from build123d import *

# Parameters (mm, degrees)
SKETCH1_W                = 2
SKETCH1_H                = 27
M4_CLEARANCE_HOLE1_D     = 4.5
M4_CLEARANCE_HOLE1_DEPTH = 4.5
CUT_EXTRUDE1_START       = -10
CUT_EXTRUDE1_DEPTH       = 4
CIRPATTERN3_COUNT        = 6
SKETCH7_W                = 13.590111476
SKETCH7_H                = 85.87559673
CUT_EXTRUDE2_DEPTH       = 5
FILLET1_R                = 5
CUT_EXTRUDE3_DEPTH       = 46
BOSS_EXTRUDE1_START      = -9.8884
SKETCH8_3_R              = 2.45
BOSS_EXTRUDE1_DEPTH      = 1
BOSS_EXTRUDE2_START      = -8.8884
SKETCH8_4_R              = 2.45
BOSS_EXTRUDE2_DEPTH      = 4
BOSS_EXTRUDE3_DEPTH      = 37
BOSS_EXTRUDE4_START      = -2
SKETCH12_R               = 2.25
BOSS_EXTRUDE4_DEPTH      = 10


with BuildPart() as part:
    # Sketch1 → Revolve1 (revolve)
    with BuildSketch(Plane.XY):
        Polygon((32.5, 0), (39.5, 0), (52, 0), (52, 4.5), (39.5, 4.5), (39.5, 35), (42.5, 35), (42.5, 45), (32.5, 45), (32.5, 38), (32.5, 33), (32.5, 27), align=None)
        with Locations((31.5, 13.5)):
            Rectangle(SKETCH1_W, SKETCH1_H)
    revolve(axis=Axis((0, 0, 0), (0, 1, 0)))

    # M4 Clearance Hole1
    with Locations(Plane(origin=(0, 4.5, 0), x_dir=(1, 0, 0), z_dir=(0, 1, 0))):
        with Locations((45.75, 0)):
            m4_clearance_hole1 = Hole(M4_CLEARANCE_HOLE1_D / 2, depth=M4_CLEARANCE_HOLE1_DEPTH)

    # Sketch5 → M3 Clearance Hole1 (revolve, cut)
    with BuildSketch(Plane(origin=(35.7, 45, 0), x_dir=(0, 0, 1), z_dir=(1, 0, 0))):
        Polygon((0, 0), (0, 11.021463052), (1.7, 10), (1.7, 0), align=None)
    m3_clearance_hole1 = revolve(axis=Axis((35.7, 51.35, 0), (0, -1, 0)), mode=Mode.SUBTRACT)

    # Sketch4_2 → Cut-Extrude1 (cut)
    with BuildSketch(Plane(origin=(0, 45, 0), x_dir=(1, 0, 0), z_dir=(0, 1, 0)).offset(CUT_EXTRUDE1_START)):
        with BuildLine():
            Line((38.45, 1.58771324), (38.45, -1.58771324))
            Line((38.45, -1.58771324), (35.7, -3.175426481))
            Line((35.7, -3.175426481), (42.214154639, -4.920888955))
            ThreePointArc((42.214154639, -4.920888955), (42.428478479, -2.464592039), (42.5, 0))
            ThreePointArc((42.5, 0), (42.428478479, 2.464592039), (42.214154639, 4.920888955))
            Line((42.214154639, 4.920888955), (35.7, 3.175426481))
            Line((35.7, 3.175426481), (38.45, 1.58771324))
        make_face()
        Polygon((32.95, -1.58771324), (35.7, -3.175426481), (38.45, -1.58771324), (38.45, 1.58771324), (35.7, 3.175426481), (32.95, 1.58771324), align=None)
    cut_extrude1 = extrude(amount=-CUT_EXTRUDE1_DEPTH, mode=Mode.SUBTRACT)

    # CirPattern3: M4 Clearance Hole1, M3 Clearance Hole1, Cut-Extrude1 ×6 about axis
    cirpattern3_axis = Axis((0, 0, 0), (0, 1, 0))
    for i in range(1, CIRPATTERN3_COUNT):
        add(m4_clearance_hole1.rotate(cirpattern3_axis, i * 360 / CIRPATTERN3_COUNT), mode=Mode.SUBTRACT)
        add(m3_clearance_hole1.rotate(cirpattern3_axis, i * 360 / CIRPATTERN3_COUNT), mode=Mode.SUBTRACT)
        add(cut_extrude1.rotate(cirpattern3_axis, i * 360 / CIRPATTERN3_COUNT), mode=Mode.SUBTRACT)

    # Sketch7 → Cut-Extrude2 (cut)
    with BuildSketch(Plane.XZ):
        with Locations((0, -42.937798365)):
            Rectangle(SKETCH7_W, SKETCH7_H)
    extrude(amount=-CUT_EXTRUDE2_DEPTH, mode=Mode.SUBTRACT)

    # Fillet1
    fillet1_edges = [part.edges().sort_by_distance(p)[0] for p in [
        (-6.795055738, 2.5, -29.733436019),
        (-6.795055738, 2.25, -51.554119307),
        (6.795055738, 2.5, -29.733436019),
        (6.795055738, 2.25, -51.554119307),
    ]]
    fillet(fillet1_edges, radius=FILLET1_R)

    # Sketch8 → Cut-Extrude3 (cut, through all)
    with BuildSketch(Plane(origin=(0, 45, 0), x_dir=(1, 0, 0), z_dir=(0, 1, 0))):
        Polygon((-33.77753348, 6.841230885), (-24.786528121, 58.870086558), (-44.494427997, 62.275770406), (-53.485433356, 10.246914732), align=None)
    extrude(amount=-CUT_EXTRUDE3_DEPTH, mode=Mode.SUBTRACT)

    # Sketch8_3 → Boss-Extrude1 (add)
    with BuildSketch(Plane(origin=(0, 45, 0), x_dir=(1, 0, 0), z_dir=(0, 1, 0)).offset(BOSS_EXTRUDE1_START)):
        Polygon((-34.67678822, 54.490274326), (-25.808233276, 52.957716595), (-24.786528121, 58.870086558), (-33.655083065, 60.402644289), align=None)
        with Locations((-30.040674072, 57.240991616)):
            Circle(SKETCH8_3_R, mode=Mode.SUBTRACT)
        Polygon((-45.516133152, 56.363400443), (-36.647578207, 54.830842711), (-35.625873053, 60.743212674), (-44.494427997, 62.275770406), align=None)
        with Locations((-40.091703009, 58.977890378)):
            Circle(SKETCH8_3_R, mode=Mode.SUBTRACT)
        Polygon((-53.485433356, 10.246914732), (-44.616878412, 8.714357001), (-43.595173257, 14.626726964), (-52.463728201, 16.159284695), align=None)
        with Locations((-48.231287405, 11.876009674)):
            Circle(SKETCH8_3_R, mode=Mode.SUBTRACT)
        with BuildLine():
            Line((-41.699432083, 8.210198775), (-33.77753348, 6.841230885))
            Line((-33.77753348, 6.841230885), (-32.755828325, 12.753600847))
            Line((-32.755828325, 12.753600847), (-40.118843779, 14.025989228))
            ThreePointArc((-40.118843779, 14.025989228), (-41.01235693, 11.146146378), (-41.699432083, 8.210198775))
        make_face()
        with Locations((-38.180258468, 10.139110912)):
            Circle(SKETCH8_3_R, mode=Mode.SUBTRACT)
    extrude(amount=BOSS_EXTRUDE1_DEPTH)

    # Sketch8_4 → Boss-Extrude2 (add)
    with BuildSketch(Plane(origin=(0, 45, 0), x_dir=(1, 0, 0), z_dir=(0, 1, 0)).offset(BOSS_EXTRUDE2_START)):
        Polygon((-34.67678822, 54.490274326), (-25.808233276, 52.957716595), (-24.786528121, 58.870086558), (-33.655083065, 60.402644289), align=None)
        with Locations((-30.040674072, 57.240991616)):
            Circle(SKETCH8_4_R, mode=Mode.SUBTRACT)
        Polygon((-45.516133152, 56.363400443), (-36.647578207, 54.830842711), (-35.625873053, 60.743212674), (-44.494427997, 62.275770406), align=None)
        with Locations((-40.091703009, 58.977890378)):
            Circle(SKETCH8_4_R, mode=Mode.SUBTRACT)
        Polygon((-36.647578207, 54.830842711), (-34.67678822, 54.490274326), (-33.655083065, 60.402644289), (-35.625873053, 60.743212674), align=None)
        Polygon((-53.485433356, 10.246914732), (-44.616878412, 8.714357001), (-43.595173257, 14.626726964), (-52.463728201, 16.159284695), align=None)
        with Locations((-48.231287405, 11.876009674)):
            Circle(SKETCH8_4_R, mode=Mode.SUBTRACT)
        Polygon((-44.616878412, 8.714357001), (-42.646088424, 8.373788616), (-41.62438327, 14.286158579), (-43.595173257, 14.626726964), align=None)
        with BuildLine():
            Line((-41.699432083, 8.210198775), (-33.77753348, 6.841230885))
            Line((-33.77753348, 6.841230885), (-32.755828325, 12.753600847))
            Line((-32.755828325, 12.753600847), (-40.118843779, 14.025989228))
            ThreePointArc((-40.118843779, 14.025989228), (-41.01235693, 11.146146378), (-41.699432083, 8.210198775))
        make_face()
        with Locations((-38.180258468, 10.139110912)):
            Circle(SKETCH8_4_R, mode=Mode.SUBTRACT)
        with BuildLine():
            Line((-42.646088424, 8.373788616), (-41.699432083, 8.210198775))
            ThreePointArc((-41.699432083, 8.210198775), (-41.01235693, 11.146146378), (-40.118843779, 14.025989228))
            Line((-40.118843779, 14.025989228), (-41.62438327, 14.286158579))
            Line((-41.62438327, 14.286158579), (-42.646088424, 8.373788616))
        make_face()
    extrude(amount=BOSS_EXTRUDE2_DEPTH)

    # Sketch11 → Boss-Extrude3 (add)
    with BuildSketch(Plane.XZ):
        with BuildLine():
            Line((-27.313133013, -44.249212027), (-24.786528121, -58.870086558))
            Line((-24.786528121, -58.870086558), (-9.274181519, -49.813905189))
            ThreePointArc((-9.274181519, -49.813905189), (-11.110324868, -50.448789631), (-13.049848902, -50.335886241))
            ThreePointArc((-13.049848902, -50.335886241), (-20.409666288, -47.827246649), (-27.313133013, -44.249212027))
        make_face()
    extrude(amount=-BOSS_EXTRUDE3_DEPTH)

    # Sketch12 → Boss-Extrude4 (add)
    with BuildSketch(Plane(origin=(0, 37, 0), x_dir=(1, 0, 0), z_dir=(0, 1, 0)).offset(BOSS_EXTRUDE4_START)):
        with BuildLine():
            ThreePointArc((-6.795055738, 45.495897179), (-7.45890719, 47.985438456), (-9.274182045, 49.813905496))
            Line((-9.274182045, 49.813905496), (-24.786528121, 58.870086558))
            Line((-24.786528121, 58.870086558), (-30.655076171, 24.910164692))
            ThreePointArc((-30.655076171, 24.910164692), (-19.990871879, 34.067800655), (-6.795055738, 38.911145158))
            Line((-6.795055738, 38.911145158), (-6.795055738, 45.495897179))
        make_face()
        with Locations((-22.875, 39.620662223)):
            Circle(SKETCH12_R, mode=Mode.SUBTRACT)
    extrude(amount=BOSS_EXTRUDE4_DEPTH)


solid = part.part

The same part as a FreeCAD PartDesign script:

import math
import FreeCAD as App
import Part
import Sketcher
Q = App.Units.Quantity


def edges_at(feature, points):
    """Names of the edges that pass closest to the given points."""
    edges = feature.Shape.Edges
    near = lambda p: min(range(len(edges)), key=lambda i: edges[i].distToShape(Part.Vertex(*p))[0])
    return sorted({f"Edge{near(p) + 1}" for p in points})


def add_polygon(sketch, points):
    """Adds a closed chain of lines whose ends are joined by coincident constraints."""
    first, n = sketch.GeometryCount, len(points)
    for a, b in zip(points, points[1:] + points[:1]):
        sketch.addGeometry(Part.LineSegment(App.Vector(*a, 0), App.Vector(*b, 0)), False)
    for i in range(n):
        sketch.addConstraint(Sketcher.Constraint("Coincident", first + i, 2, first + (i + 1) % n, 1))

doc = App.newDocument("Part")
body = doc.addObject("PartDesign::Body", "Body")
body.AllowCompound = True

sketch1 = body.newObject("Sketcher::SketchObject", "Sketch")
sketch1.AttachmentSupport = (doc.getObject("XY_Plane"), [""])
sketch1.MapMode = "FlatFace"
add_polygon(sketch1, [(52, 0), (52, 4.5), (39.5, 4.5), (39.5, 35), (42.5, 35), (42.5, 45), (32.5, 45), (32.5, 27), (30.5, 27), (30.5, 0)])
sketch1.addConstraint([
    Sketcher.Constraint("Vertical", 0),
    Sketcher.Constraint("Horizontal", 1),
    Sketcher.Constraint("Vertical", 2),
    Sketcher.Constraint("Horizontal", 3),
    Sketcher.Constraint("Vertical", 4),
    Sketcher.Constraint("Horizontal", 5),
    Sketcher.Constraint("Vertical", 6),
    Sketcher.Constraint("Horizontal", 7),
    Sketcher.Constraint("Vertical", 8),
    Sketcher.Constraint("Horizontal", 9),
    Sketcher.Constraint("PointOnObject", 8, 2, -1),
    Sketcher.Constraint("Equal", 5, 4),
    Sketcher.Constraint("DistanceX", 3, 1, 3, 2, 3.0),
    Sketcher.Constraint("DistanceX", 5, 2, 5, 1, 10.0),
    Sketcher.Constraint("DistanceX", 7, 2, 7, 1, 2.0),
    Sketcher.Constraint("DistanceY", 6, 2, 6, 1, 18.0),
    Sketcher.Constraint("DistanceY", 8, 2, 8, 1, 27.0),
    Sketcher.Constraint("DistanceX", 1, 2, 1, 1, 12.5),
    Sketcher.Constraint("DistanceY", 0, 1, 0, 2, 4.5),
    Sketcher.Constraint("DistanceX", -1, 1, 0, 2, 52.0),
])
revolution = body.newObject("PartDesign::Revolution", "Revolution")
revolution.Profile = sketch1
revolution.ReferenceAxis = (sketch1, ["V_Axis"])
revolution.Angle = 360

sketch2 = body.newObject("Sketcher::SketchObject", "Sketch001")
sketch2.AttachmentSupport = (doc.getObject("XZ_Plane"), [""])
sketch2.MapMode = "FlatFace"
sketch2.AttachmentOffset = App.Placement(App.Vector(0, 0, -4.5), App.Rotation())
sketch2.addGeometry(Part.Circle(App.Vector(45.8, 0, 0), App.Vector(0, 0, 1), 2.2), False)
sketch2.addConstraint([
    Sketcher.Constraint("PointOnObject", 0, 3, -1),
    Sketcher.Constraint("Diameter", 0, 4.5),
    Sketcher.Constraint("DistanceX", -1, 1, 0, 3, 45.75),
])
doc.recompute()
hole = body.newObject("PartDesign::Hole", "Hole")
hole.Profile = sketch2
hole.ThreadType = "None"
hole.Diameter = 4.5
hole.DepthType = "Dimension"
hole.Depth = 4.5
hole.DrillPoint = "Flat"
hole.Reversed = True

sketch3 = body.newObject("Sketcher::SketchObject", "Sketch002")
sketch3.AttachmentSupport = (doc.getObject("YZ_Plane"), [""])
sketch3.MapMode = "FlatFace"
sketch3.AttachmentOffset = App.Placement(App.Vector(0, 0, 35.7), App.Rotation())
add_polygon(sketch3, [(34, 0), (45, 0), (45, 1.7), (35, 1.7)])
sketch3.addConstraint([
    Sketcher.Constraint("Horizontal", 0),
    Sketcher.Constraint("Vertical", 1),
    Sketcher.Constraint("Horizontal", 2),
    Sketcher.Constraint("PointOnObject", 0, 2, -1),
    Sketcher.Constraint("DistanceX", 2, 2, 2, 1, 10.0),
    Sketcher.Constraint("Angle", 3, Q("-121 deg")),
    Sketcher.Constraint("DistanceY", 1, 1, 1, 2, 1.7),
    Sketcher.Constraint("DistanceX", -1, 1, 0, 2, 45.0),
])
groove = body.newObject("PartDesign::Groove", "Groove")
groove.Profile = sketch3
groove.ReferenceAxis = (sketch3, ["H_Axis"])
groove.Angle = 360

sketch4 = body.newObject("Sketcher::SketchObject", "Sketch003")
sketch4.AttachmentSupport = (doc.getObject("XZ_Plane"), [""])
sketch4.MapMode = "FlatFace"
sketch4.AttachmentOffset = App.Placement(App.Vector(0, 0, -35), App.Rotation())
sketch4.addGeometry([
    Part.LineSegment(App.Vector(35.7, 3.2, 0), App.Vector(42.2, 4.9, 0)),
    Part.ArcOfCircle(Part.Circle(App.Vector(0, 0, 0), App.Vector(0, 0, 1), 42.5), math.radians(0), math.radians(6.65)),
    Part.ArcOfCircle(Part.Circle(App.Vector(0, 0, 0), App.Vector(0, 0, 1), 42.5), math.radians(-6.65), math.radians(0)),
    Part.LineSegment(App.Vector(42.2, -4.9, 0), App.Vector(35.7, -3.2, 0)),
    Part.LineSegment(App.Vector(35.7, -3.2, 0), App.Vector(33, -1.6, 0)),
    Part.LineSegment(App.Vector(33, -1.6, 0), App.Vector(33, 1.6, 0)),
    Part.LineSegment(App.Vector(33, 1.6, 0), App.Vector(35.7, 3.2, 0)),
], False)
sketch4.addConstraint([
    Sketcher.Constraint("Coincident", 0, 2, 1, 2),
    Sketcher.Constraint("Tangent", 1, 1, 2, 2),
    Sketcher.Constraint("Coincident", 2, 1, 3, 1),
    Sketcher.Constraint("Coincident", 3, 2, 4, 1),
    Sketcher.Constraint("Coincident", 4, 2, 5, 1),
    Sketcher.Constraint("Coincident", 5, 2, 6, 1),
    Sketcher.Constraint("Coincident", 6, 2, 0, 1),
    Sketcher.Constraint("Vertical", 5),
    Sketcher.Constraint("Coincident", 1, 3, -1, 1),
    Sketcher.Constraint("Equal", 1, 2),
    Sketcher.Constraint("Symmetric", 3, 2, 6, 2, -1),
    Sketcher.Constraint("PointOnObject", 1, 1, -1),
    Sketcher.Constraint("Vertical", 0, 2, 2, 1),
    Sketcher.Constraint("Equal", 4, 6),
    Sketcher.Constraint("Radius", 1, 42.5),
    Sketcher.Constraint("Angle", 0, Q("15 deg")),
    Sketcher.Constraint("Angle", 4, Q("150 deg")),
    Sketcher.Constraint("DistanceX", -1, 1, 3, 2, 35.7),
    Sketcher.Constraint("DistanceX", -1, 1, 4, 2, 32.95),
    Sketcher.Constraint("Distance", 0, 6.743949),
])
pocket1 = body.newObject("PartDesign::Pocket", "Pocket")
pocket1.Profile = sketch4
pocket1.Length = 4
pocket1.Reversed = True
doc.recompute()

polarpattern = body.newObject("PartDesign::PolarPattern", "PolarPattern")
polarpattern.Originals = [hole, groove, pocket1]
polarpattern.Axis = (doc.getObject("Y_Axis"), [""])
polarpattern.Angle = 360
polarpattern.Occurrences = 6
body.Tip = polarpattern

sketch5 = body.newObject("Sketcher::SketchObject", "Sketch004")
sketch5.AttachmentSupport = (doc.getObject("XZ_Plane"), [""])
sketch5.MapMode = "FlatFace"
add_polygon(sketch5, [(-7, 0), (-7, -86), (7, -86), (7, 0)])
sketch5.addConstraint([
    Sketcher.Constraint("Vertical", 0),
    Sketcher.Constraint("Horizontal", 1),
    Sketcher.Constraint("Vertical", 2),
    Sketcher.Constraint("Horizontal", 3),
    Sketcher.Constraint("Symmetric", 2, 2, 3, 2, -1, 1),
    Sketcher.Constraint("DistanceX", 1, 1, 1, 2, 13.590111),
    Sketcher.Constraint("DistanceY", 0, 2, 0, 1, 85.875597),
])
pocket2 = body.newObject("PartDesign::Pocket", "Pocket001")
pocket2.Profile = sketch5
pocket2.Length = 5
doc.recompute()

fillet = body.newObject("PartDesign::Fillet", "Fillet")
fillet.Base = (pocket2, edges_at(pocket2, [
    (-6.795, 2.5, -29.733),
    (-6.795, 2.25, -51.554),
    (6.795, 2.5, -29.733),
    (6.795, 2.25, -51.554),
]))
fillet.Radius = 5

sketch6 = body.newObject("Sketcher::SketchObject", "Sketch005")
sketch6.AttachmentSupport = (doc.getObject("XZ_Plane"), [""])
sketch6.MapMode = "FlatFace"
sketch6.AttachmentOffset = App.Placement(App.Vector(0, 0, -45), App.Rotation())
add_polygon(sketch6, [(-34, -7), (-25, -59), (-44, -62), (-53, -10)])
sketch6.addConstraint([
    Sketcher.Constraint("Perpendicular", 0, 1),
    Sketcher.Constraint("Perpendicular", 1, 2),
    Sketcher.Constraint("Perpendicular", 2, 3),
    Sketcher.Constraint("Distance", 1, 20.0),
    Sketcher.Constraint("Distance", 0, 52.8),
    Sketcher.Constraint("DistanceX", 1, 2, 0, 2, 19.7079),
    Sketcher.Constraint("DistanceX", 0, 2, -1, 1, 24.786528),
    Sketcher.Constraint("DistanceY", 1, 2, -1, 1, 62.27577),
])
pocket3 = body.newObject("PartDesign::Pocket", "Pocket002")
pocket3.Profile = sketch6
pocket3.Type = "ThroughAll"
pocket3.Reversed = True

sketch7 = body.newObject("Sketcher::SketchObject", "Sketch006")
sketch7.AttachmentSupport = (doc.getObject("XZ_Plane"), [""])
sketch7.MapMode = "FlatFace"
sketch7.AttachmentOffset = App.Placement(App.Vector(0, 0, -35.1116), App.Rotation())
add_polygon(sketch7, [(-34.7, -54.5), (-25.8, -53), (-24.8, -58.9), (-33.7, -60.4)])
sketch7.addGeometry(Part.Circle(App.Vector(-30, -57.2, 0), App.Vector(0, 0, 1), 2.5), False)
add_polygon(sketch7, [(-45.5, -56.4), (-36.6, -54.8), (-35.6, -60.7), (-44.5, -62.3)])
sketch7.addGeometry(Part.Circle(App.Vector(-40.1, -59, 0), App.Vector(0, 0, 1), 2.5), False)
add_polygon(sketch7, [(-53.5, -10.2), (-44.6, -8.7), (-43.6, -14.6), (-52.5, -16.2)])
sketch7.addGeometry(Part.Circle(App.Vector(-48.2, -11.9, 0), App.Vector(0, 0, 1), 2.5), False)
sketch7.addGeometry(Part.LineSegment(App.Vector(-41.7, -8.2, 0), App.Vector(-33.8, -6.8, 0)), False)
sketch7.addGeometry(Part.LineSegment(App.Vector(-33.8, -6.8, 0), App.Vector(-32.8, -12.8, 0)), False)
sketch7.addGeometry(Part.LineSegment(App.Vector(-32.8, -12.8, 0), App.Vector(-40.1, -14, 0)), False)
sketch7.addGeometry(Part.ArcOfCircle(Part.Circle(App.Vector(0, 0, 0), App.Vector(0, 0, 1), 42.5), math.radians(-168.86), math.radians(-160.73)), False)
sketch7.addGeometry(Part.Circle(App.Vector(-38.2, -10.1, 0), App.Vector(0, 0, 1), 2.5), False)
sketch7.addConstraint([
    Sketcher.Constraint("Coincident", 15, 2, 16, 1),
    Sketcher.Constraint("Coincident", 16, 2, 17, 1),
    Sketcher.Constraint("Coincident", 17, 2, 18, 2),
    Sketcher.Constraint("Coincident", 18, 1, 15, 1),
    Sketcher.Constraint("Coincident", 18, 3, -1, 1),
    Sketcher.Constraint("Equal", 4, 9),
    Sketcher.Constraint("Equal", 9, 14),
    Sketcher.Constraint("Equal", 14, 19),
    Sketcher.Constraint("Perpendicular", 0, 1),
    Sketcher.Constraint("Perpendicular", 1, 2),
    Sketcher.Constraint("Perpendicular", 2, 3),
    Sketcher.Constraint("Perpendicular", 3, 5),
    Sketcher.Constraint("Perpendicular", 5, 6),
    Sketcher.Constraint("Perpendicular", 6, 7),
    Sketcher.Constraint("Perpendicular", 7, 8),
    Sketcher.Constraint("Perpendicular", 8, 10),
    Sketcher.Constraint("Perpendicular", 10, 11),
    Sketcher.Constraint("Perpendicular", 11, 12),
    Sketcher.Constraint("Perpendicular", 12, 13),
    Sketcher.Constraint("Perpendicular", 13, 15),
    Sketcher.Constraint("Perpendicular", 15, 16),
    Sketcher.Constraint("Perpendicular", 16, 17),
    Sketcher.Constraint("Equal", 2, 5),
    Sketcher.Constraint("Equal", 3, 6),
    Sketcher.Constraint("Equal", 7, 10),
    Sketcher.Constraint("Equal", 8, 11),
    Sketcher.Constraint("Equal", 13, 16),
    Sketcher.Constraint("Diameter", 4, 4.9),
    Sketcher.Constraint("Radius", 18, 42.5),
    Sketcher.Constraint("Distance", 0, 9.0),
    Sketcher.Constraint("Distance", 1, 6.0),
    Sketcher.Constraint("DistanceY", 8, 2, -1, 1, 56.3634),
    Sketcher.Constraint("DistanceY", 16, 2, -1, 1, 12.753601),
    Sketcher.Constraint("DistanceY", 18, 1, -1, 1, 8.210199),
    Sketcher.Constraint("DistanceY", 9, 3, 4, 3, 1.736899),
    Sketcher.Constraint("DistanceY", 14, 3, 19, 3, 1.736899),
    Sketcher.Constraint("DistanceY", 2, 2, 5, 2, 5.571802),
    Sketcher.Constraint("DistanceX", 6, 2, 4, 3, 5.585199),
    Sketcher.Constraint("DistanceX", 10, 2, 5, 2, 7.9693),
    Sketcher.Constraint("DistanceX", 13, 2, 15, 2, 19.7079),
    Sketcher.Constraint("DistanceY", 4, 3, -1, 1, 57.240992),
    Sketcher.Constraint("DistanceY", 14, 3, -1, 1, 11.87601),
    Sketcher.Constraint("DistanceX", 19, 3, -1, 1, 38.180258),
    Sketcher.Constraint("DistanceX", 1, 2, -1, 1, 24.786528),
    Sketcher.Constraint("DistanceX", 3, 2, -1, 1, 34.676788),
    Sketcher.Constraint("DistanceX", 9, 3, 4, 3, 10.051029),
    Sketcher.Constraint("DistanceX", 14, 3, 19, 3, 10.051029),
    Sketcher.Constraint("DistanceY", 10, 2, 18, 1, 0.504158),
])
pad1 = body.newObject("PartDesign::Pad", "Pad")
pad1.Profile = sketch7
pad1.Length = 1
pad1.Reversed = True

sketch8 = body.newObject("Sketcher::SketchObject", "Sketch007")
sketch8.AttachmentSupport = (doc.getObject("XZ_Plane"), [""])
sketch8.MapMode = "FlatFace"
sketch8.AttachmentOffset = App.Placement(App.Vector(0, 0, -36.1116), App.Rotation())
add_polygon(sketch8, [(-34.7, -54.5), (-25.8, -53), (-24.8, -58.9), (-33.7, -60.4), (-35.6, -60.7), (-44.5, -62.3), (-45.5, -56.4), (-36.6, -54.8)])
sketch8.addGeometry(Part.Circle(App.Vector(-30, -57.2, 0), App.Vector(0, 0, 1), 2.5), False)
sketch8.addGeometry(Part.Circle(App.Vector(-40.1, -59, 0), App.Vector(0, 0, 1), 2.5), False)
add_polygon(sketch8, [(-53.5, -10.2), (-44.6, -8.7), (-42.6, -8.4), (-41.7, -8.2), (-33.8, -6.8), (-32.8, -12.8), (-40.1, -14), (-41.6, -14.3), (-43.6, -14.6), (-52.5, -16.2)])
sketch8.addGeometry(Part.Circle(App.Vector(-48.2, -11.9, 0), App.Vector(0, 0, 1), 2.5), False)
sketch8.addGeometry(Part.Circle(App.Vector(-38.2, -10.1, 0), App.Vector(0, 0, 1), 2.5), False)
sketch8.addConstraint([
    Sketcher.Constraint("Equal", 8, 9),
    Sketcher.Constraint("Equal", 9, 20),
    Sketcher.Constraint("Equal", 20, 21),
    Sketcher.Constraint("Perpendicular", 0, 1),
    Sketcher.Constraint("Perpendicular", 1, 2),
    Sketcher.Constraint("Parallel", 2, 3),
    Sketcher.Constraint("Parallel", 3, 4),
    Sketcher.Constraint("Perpendicular", 4, 5),
    Sketcher.Constraint("Perpendicular", 5, 6),
    Sketcher.Constraint("Parallel", 6, 7),
    Sketcher.Constraint("Parallel", 7, 10),
    Sketcher.Constraint("Parallel", 10, 11),
    Sketcher.Constraint("Parallel", 11, 12),
    Sketcher.Constraint("Parallel", 12, 13),
    Sketcher.Constraint("Perpendicular", 13, 14),
    Sketcher.Constraint("Perpendicular", 14, 15),
    Sketcher.Constraint("Parallel", 15, 16),
    Sketcher.Constraint("Parallel", 16, 17),
    Sketcher.Constraint("Parallel", 17, 18),
    Sketcher.Constraint("Perpendicular", 18, 19),
    Sketcher.Constraint("Equal", 0, 2),
    Sketcher.Constraint("Equal", 2, 4),
    Sketcher.Constraint("Equal", 4, 6),
    Sketcher.Constraint("Equal", 6, 10),
    Sketcher.Constraint("Equal", 7, 11),
    Sketcher.Constraint("Equal", 5, 14),
    Sketcher.Constraint("Equal", 11, 17),
    Sketcher.Constraint("Equal", 10, 18),
    Sketcher.Constraint("Diameter", 8, 4.9),
    Sketcher.Constraint("Distance", 0, 9.0),
    Sketcher.Constraint("Distance", 1, 6.0),
    Sketcher.Constraint("Distance", 3, 2.0),
    Sketcher.Constraint("DistanceY", 5, 2, -1, 1, 56.3634),
    Sketcher.Constraint("DistanceY", 12, 2, -1, 1, 8.210199),
    Sketcher.Constraint("DistanceY", 14, 2, -1, 1, 12.753601),
    Sketcher.Constraint("DistanceY", 9, 3, 8, 3, 1.736899),
    Sketcher.Constraint("DistanceY", 20, 3, 21, 3, 1.736899),
    Sketcher.Constraint("DistanceX", 3, 2, 8, 3, 5.585199),
    Sketcher.Constraint("DistanceX", 4, 2, 1, 2, 19.7079),
    Sketcher.Constraint("DistanceX", 10, 2, 6, 2, 7.9693),
    Sketcher.Constraint("DistanceX", 20, 3, 11, 2, 5.585199),
    Sketcher.Constraint("DistanceY", 15, 2, 11, 2, 5.652201),
    Sketcher.Constraint("DistanceY", 8, 3, -1, 1, 57.240992),
    Sketcher.Constraint("DistanceY", 20, 3, -1, 1, 11.87601),
    Sketcher.Constraint("DistanceX", 21, 3, -1, 1, 38.180258),
    Sketcher.Constraint("DistanceX", 1, 2, -1, 1, 24.786528),
    Sketcher.Constraint("DistanceY", 11, 2, -1, 1, 8.373789),
    Sketcher.Constraint("DistanceX", 9, 3, 8, 3, 10.051029),
])
pad2 = body.newObject("PartDesign::Pad", "Pad001")
pad2.Profile = sketch8
pad2.Length = 4
pad2.Reversed = True

sketch9 = body.newObject("Sketcher::SketchObject", "Sketch008")
sketch9.AttachmentSupport = (doc.getObject("XZ_Plane"), [""])
sketch9.MapMode = "FlatFace"
sketch9.addGeometry([
    Part.LineSegment(App.Vector(-27.3, -44.2, 0), App.Vector(-24.8, -58.9, 0)),
    Part.LineSegment(App.Vector(-24.8, -58.9, 0), App.Vector(-9.3, -49.8, 0)),
    Part.ArcOfCircle(Part.Circle(App.Vector(-11.8, -45.5, 0), App.Vector(0, 0, 1), 5), math.radians(-105), math.radians(-60)),
    Part.ArcOfCircle(Part.Circle(App.Vector(0, 0, 0), App.Vector(0, 0, 1), 52), math.radians(-121.69), math.radians(-104.53)),
], False)
sketch9.addConstraint([
    Sketcher.Constraint("Coincident", 0, 2, 1, 1),
    Sketcher.Constraint("Tangent", 1, 2, 2, 2),
    Sketcher.Constraint("Tangent", 2, 1, 3, 2),
    Sketcher.Constraint("Coincident", 3, 1, 0, 1),
    Sketcher.Constraint("Coincident", 3, 3, -1, 1),
    Sketcher.Constraint("Radius", 2, 5.0),
    Sketcher.Constraint("Radius", 3, 52.0),
    Sketcher.Constraint("DistanceY", 0, 2, 2, 1, 8.5342),
    Sketcher.Constraint("DistanceX", 0, 2, -1, 1, 24.786528),
    Sketcher.Constraint("DistanceX", 1, 2, -1, 1, 9.274182),
    Sketcher.Constraint("DistanceX", 3, 1, 1, 2, 18.038951),
])
pad3 = body.newObject("PartDesign::Pad", "Pad002")
pad3.Profile = sketch9
pad3.Length = 37
pad3.Reversed = True

sketch10 = body.newObject("Sketcher::SketchObject", "Sketch009")
sketch10.AttachmentSupport = (doc.getObject("XZ_Plane"), [""])
sketch10.MapMode = "FlatFace"
sketch10.AttachmentOffset = App.Placement(App.Vector(0, 0, -35), App.Rotation())
sketch10.addGeometry([
    Part.ArcOfCircle(Part.Circle(App.Vector(-11.8, -45.5, 0), App.Vector(0, 0, 1), 5), math.radians(-60), math.radians(0)),
    Part.LineSegment(App.Vector(-9.3, -49.8, 0), App.Vector(-24.8, -58.9, 0)),
    Part.LineSegment(App.Vector(-24.8, -58.9, 0), App.Vector(-30.7, -24.9, 0)),
    Part.ArcOfCircle(Part.Circle(App.Vector(0, 0, 0), App.Vector(0, 0, 1), 39.5), math.radians(-141), math.radians(-100)),
    Part.LineSegment(App.Vector(-6.8, -38.9, 0), App.Vector(-6.8, -45.5, 0)),
    Part.Circle(App.Vector(-22.9, -39.6, 0), App.Vector(0, 0, 1), 2.2),
], False)
sketch10.addConstraint([
    Sketcher.Constraint("Tangent", 0, 1, 1, 1),
    Sketcher.Constraint("Coincident", 1, 2, 2, 1),
    Sketcher.Constraint("Coincident", 2, 2, 3, 1),
    Sketcher.Constraint("Coincident", 3, 2, 4, 1),
    Sketcher.Constraint("Tangent", 4, 2, 0, 2),
    Sketcher.Constraint("Vertical", 4),
    Sketcher.Constraint("Coincident", 3, 3, -1, 1),
    Sketcher.Constraint("Radius", 0, 5.0),
    Sketcher.Constraint("Diameter", 5, 4.5),
    Sketcher.Constraint("Radius", 3, 39.5),
    Sketcher.Constraint("DistanceX", 5, 3, -1, 1, 22.875),
    Sketcher.Constraint("DistanceY", 4, 2, 4, 1, 6.584752),
    Sketcher.Constraint("DistanceX", 1, 2, -1, 1, 24.786528),
    Sketcher.Constraint("DistanceY", 0, 1, 0, 3, 4.318008),
    Sketcher.Constraint("DistanceY", 1, 2, 0, 1, 9.056181),
    Sketcher.Constraint("DistanceX", 2, 2, 0, 3, 18.86002),
    Sketcher.Constraint("DistanceY", 5, 3, -1, 1, 39.620662),
])
pad4 = body.newObject("PartDesign::Pad", "Pad003")
pad4.Profile = sketch10
pad4.Length = 10
pad4.Reversed = True

doc.recompute()
